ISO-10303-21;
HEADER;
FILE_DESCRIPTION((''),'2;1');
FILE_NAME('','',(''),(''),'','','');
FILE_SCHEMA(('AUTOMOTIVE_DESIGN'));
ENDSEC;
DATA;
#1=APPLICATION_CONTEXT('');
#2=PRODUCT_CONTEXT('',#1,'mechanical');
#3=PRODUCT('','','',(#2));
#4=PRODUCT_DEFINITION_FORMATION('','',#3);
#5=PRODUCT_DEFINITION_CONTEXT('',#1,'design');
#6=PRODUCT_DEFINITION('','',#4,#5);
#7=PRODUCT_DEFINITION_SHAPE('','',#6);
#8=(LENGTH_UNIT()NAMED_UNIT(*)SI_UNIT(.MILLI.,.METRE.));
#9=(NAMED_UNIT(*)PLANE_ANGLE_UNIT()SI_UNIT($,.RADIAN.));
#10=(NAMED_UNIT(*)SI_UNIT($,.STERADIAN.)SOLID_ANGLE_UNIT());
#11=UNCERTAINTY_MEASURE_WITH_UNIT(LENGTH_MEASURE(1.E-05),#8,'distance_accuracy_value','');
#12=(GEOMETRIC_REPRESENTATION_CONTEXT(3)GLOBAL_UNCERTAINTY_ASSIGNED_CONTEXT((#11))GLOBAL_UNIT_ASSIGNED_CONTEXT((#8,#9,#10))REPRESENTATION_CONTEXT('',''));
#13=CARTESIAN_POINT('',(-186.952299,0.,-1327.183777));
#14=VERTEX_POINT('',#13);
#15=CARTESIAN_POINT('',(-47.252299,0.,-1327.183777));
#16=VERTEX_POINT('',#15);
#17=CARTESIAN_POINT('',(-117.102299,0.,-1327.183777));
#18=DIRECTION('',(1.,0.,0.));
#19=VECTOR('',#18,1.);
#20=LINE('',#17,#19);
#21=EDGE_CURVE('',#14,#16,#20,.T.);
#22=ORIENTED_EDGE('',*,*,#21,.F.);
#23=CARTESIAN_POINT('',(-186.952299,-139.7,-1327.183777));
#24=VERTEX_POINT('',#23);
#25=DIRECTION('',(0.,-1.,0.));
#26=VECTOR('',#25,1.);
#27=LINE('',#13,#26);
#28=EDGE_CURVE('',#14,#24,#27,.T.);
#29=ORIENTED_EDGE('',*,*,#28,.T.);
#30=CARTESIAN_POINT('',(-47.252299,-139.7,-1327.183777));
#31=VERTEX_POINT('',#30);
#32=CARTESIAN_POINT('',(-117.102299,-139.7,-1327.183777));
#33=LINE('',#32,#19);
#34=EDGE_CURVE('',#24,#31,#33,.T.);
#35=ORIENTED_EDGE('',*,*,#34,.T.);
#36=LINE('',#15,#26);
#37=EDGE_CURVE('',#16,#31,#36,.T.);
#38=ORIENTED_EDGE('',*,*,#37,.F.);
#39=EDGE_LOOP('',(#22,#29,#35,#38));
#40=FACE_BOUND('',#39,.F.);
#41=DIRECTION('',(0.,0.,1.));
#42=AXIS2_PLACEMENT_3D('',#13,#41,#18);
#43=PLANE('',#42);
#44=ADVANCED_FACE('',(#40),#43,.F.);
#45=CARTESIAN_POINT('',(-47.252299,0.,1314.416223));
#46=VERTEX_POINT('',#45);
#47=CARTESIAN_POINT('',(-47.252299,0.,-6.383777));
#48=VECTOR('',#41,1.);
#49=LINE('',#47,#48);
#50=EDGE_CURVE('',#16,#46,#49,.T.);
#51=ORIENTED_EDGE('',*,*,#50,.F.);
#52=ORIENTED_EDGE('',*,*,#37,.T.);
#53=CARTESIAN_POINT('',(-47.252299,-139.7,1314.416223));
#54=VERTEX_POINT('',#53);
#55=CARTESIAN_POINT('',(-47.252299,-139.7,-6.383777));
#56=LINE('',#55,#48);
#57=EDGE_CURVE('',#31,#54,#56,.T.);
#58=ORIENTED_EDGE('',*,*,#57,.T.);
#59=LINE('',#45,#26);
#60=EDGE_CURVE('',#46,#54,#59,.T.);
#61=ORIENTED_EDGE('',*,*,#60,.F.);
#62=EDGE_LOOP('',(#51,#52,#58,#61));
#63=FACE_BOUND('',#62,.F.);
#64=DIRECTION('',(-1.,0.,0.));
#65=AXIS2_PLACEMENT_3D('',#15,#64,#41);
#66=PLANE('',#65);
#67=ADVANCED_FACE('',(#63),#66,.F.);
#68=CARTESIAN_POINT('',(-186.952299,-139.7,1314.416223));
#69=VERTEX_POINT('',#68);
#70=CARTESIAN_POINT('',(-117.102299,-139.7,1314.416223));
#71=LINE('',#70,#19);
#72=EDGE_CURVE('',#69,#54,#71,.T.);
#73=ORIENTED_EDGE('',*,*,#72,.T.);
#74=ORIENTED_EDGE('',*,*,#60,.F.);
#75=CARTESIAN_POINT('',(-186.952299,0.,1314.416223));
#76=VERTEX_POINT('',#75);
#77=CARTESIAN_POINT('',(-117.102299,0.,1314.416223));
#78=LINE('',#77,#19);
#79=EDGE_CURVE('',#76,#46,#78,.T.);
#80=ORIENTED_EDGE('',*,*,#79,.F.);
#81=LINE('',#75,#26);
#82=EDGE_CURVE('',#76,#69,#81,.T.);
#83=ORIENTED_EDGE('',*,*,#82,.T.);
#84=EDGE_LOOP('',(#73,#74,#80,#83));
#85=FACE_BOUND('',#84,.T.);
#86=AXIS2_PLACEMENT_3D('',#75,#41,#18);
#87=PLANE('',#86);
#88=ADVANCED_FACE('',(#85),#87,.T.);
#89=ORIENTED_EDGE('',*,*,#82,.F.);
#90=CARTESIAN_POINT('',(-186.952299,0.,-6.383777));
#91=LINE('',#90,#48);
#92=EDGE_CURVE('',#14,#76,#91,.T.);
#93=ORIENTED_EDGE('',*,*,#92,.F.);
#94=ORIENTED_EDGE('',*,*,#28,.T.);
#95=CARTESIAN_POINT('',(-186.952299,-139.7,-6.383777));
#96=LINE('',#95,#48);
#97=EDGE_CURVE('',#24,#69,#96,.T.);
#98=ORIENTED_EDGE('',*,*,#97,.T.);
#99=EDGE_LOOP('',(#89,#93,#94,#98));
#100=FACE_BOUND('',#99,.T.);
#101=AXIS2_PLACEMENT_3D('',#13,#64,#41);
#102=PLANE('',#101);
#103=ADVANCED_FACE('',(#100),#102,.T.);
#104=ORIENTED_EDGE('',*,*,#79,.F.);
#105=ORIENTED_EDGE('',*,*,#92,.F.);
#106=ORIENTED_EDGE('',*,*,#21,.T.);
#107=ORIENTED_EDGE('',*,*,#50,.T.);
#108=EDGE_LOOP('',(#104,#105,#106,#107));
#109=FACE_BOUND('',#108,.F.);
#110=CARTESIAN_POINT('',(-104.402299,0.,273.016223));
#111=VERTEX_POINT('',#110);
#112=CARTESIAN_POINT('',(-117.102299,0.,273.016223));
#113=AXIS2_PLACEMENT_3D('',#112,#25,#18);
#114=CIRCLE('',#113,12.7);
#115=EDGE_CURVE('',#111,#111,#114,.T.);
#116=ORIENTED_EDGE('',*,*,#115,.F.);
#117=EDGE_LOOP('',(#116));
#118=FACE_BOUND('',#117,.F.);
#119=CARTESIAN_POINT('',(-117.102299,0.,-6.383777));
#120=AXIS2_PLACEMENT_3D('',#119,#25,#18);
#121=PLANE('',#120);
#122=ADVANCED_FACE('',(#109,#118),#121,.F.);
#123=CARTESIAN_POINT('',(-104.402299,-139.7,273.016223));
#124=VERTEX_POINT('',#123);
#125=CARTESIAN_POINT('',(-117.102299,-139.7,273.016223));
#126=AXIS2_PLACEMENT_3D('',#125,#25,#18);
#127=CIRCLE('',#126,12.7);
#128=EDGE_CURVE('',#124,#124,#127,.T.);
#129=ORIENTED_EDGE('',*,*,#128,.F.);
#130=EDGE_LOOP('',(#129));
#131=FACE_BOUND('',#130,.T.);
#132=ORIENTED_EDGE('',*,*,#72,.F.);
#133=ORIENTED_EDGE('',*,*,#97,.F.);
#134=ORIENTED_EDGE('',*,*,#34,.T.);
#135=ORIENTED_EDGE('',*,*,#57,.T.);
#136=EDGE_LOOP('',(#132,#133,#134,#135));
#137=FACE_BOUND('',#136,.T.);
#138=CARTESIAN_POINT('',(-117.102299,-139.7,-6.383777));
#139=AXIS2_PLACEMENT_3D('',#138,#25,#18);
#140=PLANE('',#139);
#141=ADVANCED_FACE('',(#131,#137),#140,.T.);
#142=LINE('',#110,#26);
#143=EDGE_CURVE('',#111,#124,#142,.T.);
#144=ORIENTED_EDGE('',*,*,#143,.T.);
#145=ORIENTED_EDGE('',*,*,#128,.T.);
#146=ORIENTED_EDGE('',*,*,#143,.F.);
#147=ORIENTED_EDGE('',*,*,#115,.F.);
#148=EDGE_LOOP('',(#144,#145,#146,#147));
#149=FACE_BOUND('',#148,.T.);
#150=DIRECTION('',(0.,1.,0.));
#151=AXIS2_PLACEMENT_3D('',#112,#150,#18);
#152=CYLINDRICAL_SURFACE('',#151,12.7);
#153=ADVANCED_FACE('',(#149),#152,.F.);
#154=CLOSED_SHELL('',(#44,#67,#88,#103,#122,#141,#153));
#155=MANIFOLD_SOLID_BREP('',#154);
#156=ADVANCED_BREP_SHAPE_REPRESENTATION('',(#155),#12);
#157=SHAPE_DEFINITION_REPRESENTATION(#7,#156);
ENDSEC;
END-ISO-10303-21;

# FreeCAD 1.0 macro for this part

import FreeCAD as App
import Part
import Sketcher

V = App.Vector
Q = App.Units.Quantity

doc = App.newDocument("Part")
params = doc.addObject("Spreadsheet::Sheet", "Params")
for row, (alias, value) in enumerate([
    ("sketch1_diameter", "1 in"),
    ("sketch1_height", "104 in"),
    ("sketch1_width", "5.5 in"),
    ("pad1_length", "5.5 in"),
], start=1):
    params.set(f"A{row}", alias)
    params.set(f"B{row}", "=" + value)
    params.setAlias(f"B{row}", alias)

body = doc.addObject("PartDesign::Body", "Body")

# Sketch on XZ plane
sketch1 = doc.addObject("Sketcher::SketchObject", "Sketch")
body.addObject(sketch1)
sketch1.AttachmentSupport = (doc.XZ_Plane, [""])
sketch1.MapMode = "FlatFace"
sketch1.addGeometry([
    Part.LineSegment(V(-187, 1314, 0), V(-187, -1327, 0)),  # 0
    Part.LineSegment(V(-187, -1327, 0), V(-47, -1327, 0)),  # 1
    Part.LineSegment(V(-47, -1327, 0), V(-47, 1314, 0)),  # 2
    Part.LineSegment(V(-47, 1314, 0), V(-187, 1314, 0)),  # 3
    Part.Circle(V(-117, 273, 0), V(0, 0, 1), 13),  # 4
], False)
sketch1.addConstraint([
    Sketcher.Constraint("Coincident", 0, 2, 1, 1),
    Sketcher.Constraint("Coincident", 1, 2, 2, 1),
    Sketcher.Constraint("Coincident", 2, 2, 3, 1),
    Sketcher.Constraint("Coincident", 3, 2, 0, 1),
    Sketcher.Constraint("Vertical", 0),
    Sketcher.Constraint("Horizontal", 1),
    Sketcher.Constraint("Vertical", 2),
    Sketcher.Constraint("Horizontal", 3),
    Sketcher.Constraint("Diameter", 4, Q("1 in")),
    Sketcher.Constraint("DistanceY", 0, 2, 0, 1, Q("104 in")),
    Sketcher.Constraint("DistanceX", 1, 1, 1, 2, Q("5.5 in")),
    Sketcher.Constraint("DistanceY", 0, 2, 4, 3, Q("63 in")),
    Sketcher.Constraint("DistanceX", 0, 2, 4, 3, Q("2.75 in")),
    Sketcher.Constraint("DistanceX", 4, 3, -1, 1, Q("117.102299 mm")),
    Sketcher.Constraint("DistanceY", -1, 1, 4, 3, Q("273.016223 mm")),
])
sketch1.setExpression("Constraints[8]", "Params.sketch1_diameter")
sketch1.setExpression("Constraints[9]", "Params.sketch1_height")
sketch1.setExpression("Constraints[10]", "Params.sketch1_width")
pad1 = doc.addObject("PartDesign::Pad", "Pad")
body.addObject(pad1)
pad1.Profile = sketch1
pad1.setExpression("Length", "Params.pad1_length")

doc.recompute()
